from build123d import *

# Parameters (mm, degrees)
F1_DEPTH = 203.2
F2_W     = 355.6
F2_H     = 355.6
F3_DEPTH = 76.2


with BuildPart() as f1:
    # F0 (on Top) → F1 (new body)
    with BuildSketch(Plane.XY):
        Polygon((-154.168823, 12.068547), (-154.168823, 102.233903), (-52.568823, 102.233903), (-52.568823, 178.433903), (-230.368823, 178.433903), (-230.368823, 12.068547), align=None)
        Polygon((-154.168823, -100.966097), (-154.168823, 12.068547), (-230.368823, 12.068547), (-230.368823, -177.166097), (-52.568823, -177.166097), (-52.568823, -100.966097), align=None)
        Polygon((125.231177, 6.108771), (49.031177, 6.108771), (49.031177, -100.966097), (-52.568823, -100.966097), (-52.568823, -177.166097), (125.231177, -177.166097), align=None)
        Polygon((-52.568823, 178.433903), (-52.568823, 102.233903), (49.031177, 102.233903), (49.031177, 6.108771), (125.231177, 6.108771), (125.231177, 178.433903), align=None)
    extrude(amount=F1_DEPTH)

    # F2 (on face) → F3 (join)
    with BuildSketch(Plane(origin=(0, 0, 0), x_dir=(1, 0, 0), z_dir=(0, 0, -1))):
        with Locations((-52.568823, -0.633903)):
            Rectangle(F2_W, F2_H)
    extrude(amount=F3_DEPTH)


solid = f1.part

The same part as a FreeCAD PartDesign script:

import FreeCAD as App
import Part
import Sketcher

V = App.Vector
Q = App.Units.Quantity

doc = App.newDocument("Part")
body = doc.addObject("PartDesign::Body", "Body")

sketch1 = doc.addObject("Sketcher::SketchObject", "Sketch")
body.addObject(sketch1)
sketch1.AttachmentSupport = (doc.XY_Plane, [""])
sketch1.MapMode = "FlatFace"
sketch1.addGeometry(Part.LineSegment(V(-230, 178, 0), V(-230, -177, 0)), False)
sketch1.addGeometry(Part.LineSegment(V(-230, -177, 0), V(125, -177, 0)), False)
sketch1.addGeometry(Part.LineSegment(V(125, -177, 0), V(125, 178, 0)), False)
sketch1.addGeometry(Part.LineSegment(V(125, 178, 0), V(-230, 178, 0)), False)
sketch1.addGeometry(Part.LineSegment(V(-154, 102, 0), V(49, 102, 0)), False)
sketch1.addGeometry(Part.LineSegment(V(49, 102, 0), V(49, -101, 0)), False)
sketch1.addGeometry(Part.LineSegment(V(49, -101, 0), V(-154, -101, 0)), False)
sketch1.addGeometry(Part.LineSegment(V(-154, -101, 0), V(-154, 102, 0)), False)
sketch1.addConstraint(Sketcher.Constraint("Coincident", 0, 2, 1, 1))
sketch1.addConstraint(Sketcher.Constraint("Coincident", 1, 2, 2, 1))
sketch1.addConstraint(Sketcher.Constraint("Coincident", 2, 2, 3, 1))
sketch1.addConstraint(Sketcher.Constraint("Coincident", 3, 2, 0, 1))
sketch1.addConstraint(Sketcher.Constraint("Coincident", 4, 2, 5, 1))
sketch1.addConstraint(Sketcher.Constraint("Coincident", 5, 2, 6, 1))
sketch1.addConstraint(Sketcher.Constraint("Coincident", 6, 2, 7, 1))
sketch1.addConstraint(Sketcher.Constraint("Coincident", 7, 2, 4, 1))
sketch1.addConstraint(Sketcher.Constraint("Vertical", 0))
sketch1.addConstraint(Sketcher.Constraint("Horizontal", 1))
sketch1.addConstraint(Sketcher.Constraint("Vertical", 2))
sketch1.addConstraint(Sketcher.Constraint("Horizontal", 3))
sketch1.addConstraint(Sketcher.Constraint("Horizontal", 4))
sketch1.addConstraint(Sketcher.Constraint("Vertical", 5))
sketch1.addConstraint(Sketcher.Constraint("Horizontal", 6))
sketch1.addConstraint(Sketcher.Constraint("Vertical", 7))
sketch1.addConstraint(Sketcher.Constraint("Equal", 3, 0))
sketch1.addConstraint(Sketcher.Constraint("Equal", 6, 5))
sketch1.addConstraint(Sketcher.Constraint("DistanceX", 1, 1, 1, 2, Q("14 in")))
sketch1.addConstraint(Sketcher.Constraint("DistanceX", 4, 1, 4, 2, Q("8 in")))
sketch1.addConstraint(Sketcher.Constraint("DistanceX", 4, 2, 2, 2, Q("3 in")))
sketch1.addConstraint(Sketcher.Constraint("DistanceY", 4, 2, 2, 2, Q("3 in")))
sketch1.addConstraint(Sketcher.Constraint("DistanceX", 0, 2, -1, 1, Q("230.368823 mm")))
sketch1.addConstraint(Sketcher.Constraint("DistanceY", 0, 2, -1, 1, Q("177.166097 mm")))
pad1 = doc.addObject("PartDesign::Pad", "Pad")
body.addObject(pad1)
pad1.Profile = sketch1
pad1.Length = Q("8 in")

sketch2 = doc.addObject("Sketcher::SketchObject", "Sketch001")
body.addObject(sketch2)
sketch2.AttachmentSupport = (doc.XY_Plane, [""])
sketch2.MapMode = "FlatFace"
sketch2.addGeometry(Part.LineSegment(V(-230, -177, 0), V(-230, 178, 0)), False)
sketch2.addGeometry(Part.LineSegment(V(-230, 178, 0), V(125, 178, 0)), False)
sketch2.addGeometry(Part.LineSegment(V(125, 178, 0), V(125, -177, 0)), False)
sketch2.addGeometry(Part.LineSegment(V(125, -177, 0), V(-230, -177, 0)), False)
sketch2.addConstraint(Sketcher.Constraint("Coincident", 0, 2, 1, 1))
sketch2.addConstraint(Sketcher.Constraint("Coincident", 1, 2, 2, 1))
sketch2.addConstraint(Sketcher.Constraint("Coincident", 2, 2, 3, 1))
sketch2.addConstraint(Sketcher.Constraint("Coincident", 3, 2, 0, 1))
sketch2.addConstraint(Sketcher.Constraint("Vertical", 0))
sketch2.addConstraint(Sketcher.Constraint("Horizontal", 1))
sketch2.addConstraint(Sketcher.Constraint("Vertical", 2))
sketch2.addConstraint(Sketcher.Constraint("Horizontal", 3))
sketch2.addConstraint(Sketcher.Constraint("Equal", 3, 0))
sketch2.addConstraint(Sketcher.Constraint("DistanceX", 1, 1, 1, 2, Q("14 in")))
sketch2.addConstraint(Sketcher.Constraint("DistanceX", 0, 2, -1, 1, Q("230.368823 mm")))
sketch2.addConstraint(Sketcher.Constraint("DistanceY", -1, 1, 0, 2, Q("178.433903 mm")))
pad2 = doc.addObject("PartDesign::Pad", "Pad001")
body.addObject(pad2)
pad2.Profile = sketch2
pad2.Length = Q("3 in")
pad2.Reversed = True

doc.recompute()
